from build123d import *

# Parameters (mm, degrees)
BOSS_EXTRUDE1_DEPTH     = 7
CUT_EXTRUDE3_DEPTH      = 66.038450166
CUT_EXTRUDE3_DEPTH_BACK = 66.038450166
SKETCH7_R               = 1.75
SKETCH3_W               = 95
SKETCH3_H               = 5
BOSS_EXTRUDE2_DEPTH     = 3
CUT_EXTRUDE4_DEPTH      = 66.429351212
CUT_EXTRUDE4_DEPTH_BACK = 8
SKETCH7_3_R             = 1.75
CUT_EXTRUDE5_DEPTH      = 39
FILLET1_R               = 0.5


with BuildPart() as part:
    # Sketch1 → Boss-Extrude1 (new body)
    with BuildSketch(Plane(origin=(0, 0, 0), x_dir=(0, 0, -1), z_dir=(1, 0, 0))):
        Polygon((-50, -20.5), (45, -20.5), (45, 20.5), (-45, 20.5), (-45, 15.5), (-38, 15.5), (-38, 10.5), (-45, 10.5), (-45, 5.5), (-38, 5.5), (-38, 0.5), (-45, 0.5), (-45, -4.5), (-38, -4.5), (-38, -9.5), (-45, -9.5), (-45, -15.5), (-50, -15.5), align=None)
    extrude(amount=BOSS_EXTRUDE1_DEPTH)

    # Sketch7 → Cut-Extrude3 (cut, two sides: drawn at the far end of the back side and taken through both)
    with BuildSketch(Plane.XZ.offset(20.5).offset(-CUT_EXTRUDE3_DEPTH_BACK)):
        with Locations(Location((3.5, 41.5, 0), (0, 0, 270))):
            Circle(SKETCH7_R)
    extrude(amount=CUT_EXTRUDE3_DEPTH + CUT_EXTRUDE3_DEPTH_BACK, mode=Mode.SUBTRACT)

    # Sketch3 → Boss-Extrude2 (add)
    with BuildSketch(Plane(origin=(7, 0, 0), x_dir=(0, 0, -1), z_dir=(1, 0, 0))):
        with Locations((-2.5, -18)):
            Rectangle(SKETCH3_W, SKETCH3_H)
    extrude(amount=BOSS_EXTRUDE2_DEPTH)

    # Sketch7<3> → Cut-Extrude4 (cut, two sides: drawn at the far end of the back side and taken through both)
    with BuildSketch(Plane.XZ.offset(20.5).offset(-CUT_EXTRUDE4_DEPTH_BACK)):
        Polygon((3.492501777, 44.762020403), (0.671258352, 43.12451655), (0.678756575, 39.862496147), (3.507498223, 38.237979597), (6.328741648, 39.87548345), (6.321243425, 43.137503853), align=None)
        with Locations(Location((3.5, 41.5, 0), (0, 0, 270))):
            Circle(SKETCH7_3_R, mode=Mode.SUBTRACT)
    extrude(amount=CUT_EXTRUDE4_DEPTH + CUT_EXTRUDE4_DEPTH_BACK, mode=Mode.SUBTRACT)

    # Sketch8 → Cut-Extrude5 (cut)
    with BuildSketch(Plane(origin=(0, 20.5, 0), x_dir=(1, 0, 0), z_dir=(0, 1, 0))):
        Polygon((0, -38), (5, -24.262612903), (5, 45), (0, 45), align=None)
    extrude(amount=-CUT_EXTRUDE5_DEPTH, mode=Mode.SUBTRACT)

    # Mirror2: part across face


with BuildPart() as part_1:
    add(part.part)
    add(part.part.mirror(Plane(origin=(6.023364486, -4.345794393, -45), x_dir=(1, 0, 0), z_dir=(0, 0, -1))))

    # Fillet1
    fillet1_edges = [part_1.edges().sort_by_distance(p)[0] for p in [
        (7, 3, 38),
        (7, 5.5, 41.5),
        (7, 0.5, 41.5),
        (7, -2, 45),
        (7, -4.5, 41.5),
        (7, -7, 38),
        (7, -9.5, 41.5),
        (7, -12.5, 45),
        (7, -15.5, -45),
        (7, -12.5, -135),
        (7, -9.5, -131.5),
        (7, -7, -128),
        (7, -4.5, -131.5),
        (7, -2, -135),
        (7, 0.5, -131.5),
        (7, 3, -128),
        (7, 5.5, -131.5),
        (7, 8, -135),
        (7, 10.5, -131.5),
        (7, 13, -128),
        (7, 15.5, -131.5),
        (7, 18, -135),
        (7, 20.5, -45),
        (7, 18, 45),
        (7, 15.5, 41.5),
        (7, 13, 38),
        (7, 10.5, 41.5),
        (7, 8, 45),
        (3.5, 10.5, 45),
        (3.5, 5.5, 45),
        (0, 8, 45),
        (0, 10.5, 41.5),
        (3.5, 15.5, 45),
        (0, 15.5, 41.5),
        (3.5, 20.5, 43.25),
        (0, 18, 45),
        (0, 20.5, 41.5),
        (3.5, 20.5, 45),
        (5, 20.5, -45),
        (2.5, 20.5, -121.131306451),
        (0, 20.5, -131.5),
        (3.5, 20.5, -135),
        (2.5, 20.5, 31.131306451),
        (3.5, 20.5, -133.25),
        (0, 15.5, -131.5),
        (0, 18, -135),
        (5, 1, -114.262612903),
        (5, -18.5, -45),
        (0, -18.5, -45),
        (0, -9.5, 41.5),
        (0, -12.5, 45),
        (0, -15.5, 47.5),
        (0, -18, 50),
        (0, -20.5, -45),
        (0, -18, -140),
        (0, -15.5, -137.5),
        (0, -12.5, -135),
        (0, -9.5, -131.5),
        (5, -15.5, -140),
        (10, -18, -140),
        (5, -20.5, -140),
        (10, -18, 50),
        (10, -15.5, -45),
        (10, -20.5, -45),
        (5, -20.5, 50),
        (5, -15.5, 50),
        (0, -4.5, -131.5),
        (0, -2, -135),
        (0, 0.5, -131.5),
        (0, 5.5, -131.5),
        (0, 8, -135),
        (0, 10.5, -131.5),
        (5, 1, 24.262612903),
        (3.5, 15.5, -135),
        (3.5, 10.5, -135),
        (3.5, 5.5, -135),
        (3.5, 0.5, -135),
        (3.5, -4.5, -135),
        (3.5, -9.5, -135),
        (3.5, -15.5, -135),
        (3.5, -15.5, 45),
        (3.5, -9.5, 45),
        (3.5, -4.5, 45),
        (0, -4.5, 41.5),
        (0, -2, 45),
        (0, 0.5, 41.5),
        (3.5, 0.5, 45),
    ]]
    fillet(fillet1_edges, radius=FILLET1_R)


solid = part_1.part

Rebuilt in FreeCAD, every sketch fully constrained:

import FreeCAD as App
import Part
import Sketcher

V = App.Vector
Q = App.Units.Quantity


def edges_at(feature, points):
    """Names of the edges that pass closest to the given points."""
    edges = feature.Shape.Edges
    near = lambda p: min(range(len(edges)), key=lambda i: edges[i].distToShape(Part.Vertex(*p))[0])
    return sorted({f"Edge{near(p) + 1}" for p in points})


def add_polygon(sketch, points):
    """Adds a closed chain of lines whose ends are joined by coincident constraints."""
    first, n = sketch.GeometryCount, len(points)
    for a, b in zip(points, points[1:] + points[:1]):
        sketch.addGeometry(Part.LineSegment(App.Vector(*a, 0), App.Vector(*b, 0)), False)
    for i in range(n):
        sketch.addConstraint(Sketcher.Constraint("Coincident", first + i, 2, first + (i + 1) % n, 1))

doc = App.newDocument("Part")
params = doc.addObject("Spreadsheet::Sheet", "Params")
for row, (alias, value) in enumerate([
    ("sketch1_width", "41 mm"),
    ("sketch1_width2", "5 mm"),
    ("sketch1_height", "95 mm"),
    ("sketch1_height2", "7 mm"),
    ("pad1_length", "7 mm"),
    ("sketch2_diameter", "3.5 mm"),
    ("sketch3_width", "5 mm"),
    ("sketch3_height", "95 mm"),
    ("pad2_length", "3 mm"),
    ("sketch4_diameter", "3.5 mm"),
    ("pocket2_length", "66.429351 mm"),
    ("pocket2_length2", "8 mm"),
    ("sketch5_width", "5 mm"),
    ("sketch5_height", "83 mm"),
    ("pocket3_length", "39 mm"),
    ("fillet_radius", "0.5 mm"),
], start=1):
    params.set(f"A{row}", alias)
    params.set(f"B{row}", "=" + value)
    params.setAlias(f"B{row}", alias)

body = doc.addObject("PartDesign::Body", "Body")

sketch1 = doc.addObject("Sketcher::SketchObject", "Sketch")
body.addObject(sketch1)
sketch1.AttachmentSupport = (doc.YZ_Plane, [""])
sketch1.MapMode = "FlatFace"
add_polygon(sketch1, [(-20.5, 50), (-20.5, -45), (20.5, -45), (20.5, 45), (15.5, 45), (15.5, 38), (10.5, 38), (10.5, 45), (5.5, 45), (5.5, 38), (0.5, 38), (0.5, 45), (-4.5, 45), (-4.5, 38), (-9.5, 38), (-9.5, 45), (-15.5, 45), (-15.5, 50)])
sketch1.addConstraint(Sketcher.Constraint("Vertical", 0))
sketch1.addConstraint(Sketcher.Constraint("Horizontal", 1))
sketch1.addConstraint(Sketcher.Constraint("Vertical", 2))
sketch1.addConstraint(Sketcher.Constraint("Horizontal", 3))
sketch1.addConstraint(Sketcher.Constraint("Vertical", 4))
sketch1.addConstraint(Sketcher.Constraint("Horizontal", 5))
sketch1.addConstraint(Sketcher.Constraint("Vertical", 6))
sketch1.addConstraint(Sketcher.Constraint("Horizontal", 7))
sketch1.addConstraint(Sketcher.Constraint("Vertical", 8))
sketch1.addConstraint(Sketcher.Constraint("Horizontal", 9))
sketch1.addConstraint(Sketcher.Constraint("Vertical", 10))
sketch1.addConstraint(Sketcher.Constraint("Horizontal", 11))
sketch1.addConstraint(Sketcher.Constraint("Vertical", 12))
sketch1.addConstraint(Sketcher.Constraint("Horizontal", 13))
sketch1.addConstraint(Sketcher.Constraint("Vertical", 14))
sketch1.addConstraint(Sketcher.Constraint("Horizontal", 15))
sketch1.addConstraint(Sketcher.Constraint("Vertical", 16))
sketch1.addConstraint(Sketcher.Constraint("Horizontal", 17))
sketch1.addConstraint(Sketcher.Constraint("Symmetric", 0, 2, 2, 2, -1, 1))
sketch1.addConstraint(Sketcher.Constraint("Symmetric", 3, 2, 15, 2, -2))
sketch1.addConstraint(Sketcher.Constraint("Horizontal", 3, 2, 6, 2))
sketch1.addConstraint(Sketcher.Constraint("Horizontal", 5, 2, 8, 2))
sketch1.addConstraint(Sketcher.Constraint("Horizontal", 7, 2, 10, 2))
sketch1.addConstraint(Sketcher.Constraint("Horizontal", 9, 2, 12, 2))
sketch1.addConstraint(Sketcher.Constraint("Equal", 3, 5))
sketch1.addConstraint(Sketcher.Constraint("Equal", 5, 7))
sketch1.addConstraint(Sketcher.Constraint("Equal", 7, 9))
sketch1.addConstraint(Sketcher.Constraint("Equal", 9, 11))
sketch1.addConstraint(Sketcher.Constraint("Equal", 11, 13))
sketch1.addConstraint(Sketcher.Constraint("Equal", 17, 16))
sketch1.addConstraint(Sketcher.Constraint("DistanceX", 1, 1, 1, 2, Q("41 mm")))
sketch1.addConstraint(Sketcher.Constraint("DistanceX", 3, 2, 3, 1, Q("5 mm")))
sketch1.addConstraint(Sketcher.Constraint("DistanceY", 0, 2, 0, 1, Q("95 mm")))
sketch1.addConstraint(Sketcher.Constraint("DistanceY", 4, 2, 4, 1, Q("7 mm")))
sketch1.setExpression("Constraints[48]", "Params.sketch1_width")
sketch1.setExpression("Constraints[49]", "Params.sketch1_width2")
sketch1.setExpression("Constraints[50]", "Params.sketch1_height")
sketch1.setExpression("Constraints[51]", "Params.sketch1_height2")
pad1 = doc.addObject("PartDesign::Pad", "Pad")
body.addObject(pad1)
pad1.Profile = sketch1
pad1.setExpression("Length", "Params.pad1_length")

sketch2 = doc.addObject("Sketcher::SketchObject", "Sketch001")
body.addObject(sketch2)
sketch2.AttachmentSupport = (doc.XZ_Plane, [""])
sketch2.MapMode = "FlatFace"
sketch2.AttachmentOffset = App.Placement(V(0, 0, 20.5), App.Rotation())
sketch2.addGeometry(Part.Circle(V(3.5, 41.5, 0), V(0, 0, 1), 1.75), False)
sketch2.addConstraint(Sketcher.Constraint("Diameter", 0, Q("3.5 mm")))
sketch2.addConstraint(Sketcher.Constraint("DistanceX", -1, 1, 0, 3, Q("3.5 mm")))
sketch2.addConstraint(Sketcher.Constraint("DistanceY", -1, 1, 0, 3, Q("41.5 mm")))
sketch2.setExpression("Constraints[0]", "Params.sketch2_diameter")
pocket1 = doc.addObject("PartDesign::Pocket", "Pocket")
body.addObject(pocket1)
pocket1.Profile = sketch2
pocket1.Type = "ThroughAll"
pocket1.Midplane = True

sketch3 = doc.addObject("Sketcher::SketchObject", "Sketch002")
body.addObject(sketch3)
sketch3.AttachmentSupport = (doc.YZ_Plane, [""])
sketch3.MapMode = "FlatFace"
sketch3.AttachmentOffset = App.Placement(V(0, 0, 7), App.Rotation())
add_polygon(sketch3, [(-15.5, 50), (-20.5, 50), (-20.5, -45), (-15.5, -45)])
sketch3.addConstraint(Sketcher.Constraint("Horizontal", 0))
sketch3.addConstraint(Sketcher.Constraint("Vertical", 1))
sketch3.addConstraint(Sketcher.Constraint("Horizontal", 2))
sketch3.addConstraint(Sketcher.Constraint("Vertical", 3))
sketch3.addConstraint(Sketcher.Constraint("DistanceX", 0, 2, 0, 1, Q("5 mm")))
sketch3.addConstraint(Sketcher.Constraint("DistanceY", 1, 2, 1, 1, Q("95 mm")))
sketch3.addConstraint(Sketcher.Constraint("DistanceY", -1, 1, 0, 2, Q("50 mm")))
sketch3.addConstraint(Sketcher.Constraint("DistanceX", 0, 2, -1, 1, Q("20.5 mm")))
sketch3.setExpression("Constraints[8]", "Params.sketch3_width")
sketch3.setExpression("Constraints[9]", "Params.sketch3_height")
pad2 = doc.addObject("PartDesign::Pad", "Pad001")
body.addObject(pad2)
pad2.Profile = sketch3
pad2.setExpression("Length", "Params.pad2_length")

sketch4 = doc.addObject("Sketcher::SketchObject", "Sketch003")
body.addObject(sketch4)
sketch4.AttachmentSupport = (doc.XZ_Plane, [""])
sketch4.MapMode = "FlatFace"
sketch4.AttachmentOffset = App.Placement(V(0, 0, 20.5), App.Rotation())
add_polygon(sketch4, [(3.492502, 44.76202), (0.671258, 43.124517), (0.678757, 39.862496), (3.507498, 38.23798), (6.328742, 39.875483), (6.321243, 43.137504)])
sketch4.addGeometry(Part.Circle(V(3.5, 41.5, 0), V(0, 0, 1), 1.75), False)
sketch4.addConstraint(Sketcher.Constraint("Parallel", 0, 3))
sketch4.addConstraint(Sketcher.Constraint("Parallel", 1, 4))
sketch4.addConstraint(Sketcher.Constraint("Parallel", 2, 5))
sketch4.addConstraint(Sketcher.Constraint("Equal", 0, 1))
sketch4.addConstraint(Sketcher.Constraint("Equal", 1, 2))
sketch4.addConstraint(Sketcher.Constraint("Equal", 2, 3))
sketch4.addConstraint(Sketcher.Constraint("Diameter", 6, Q("3.5 mm")))
sketch4.addConstraint(Sketcher.Constraint("DistanceX", -1, 1, 6, 3, Q("3.5 mm")))
sketch4.addConstraint(Sketcher.Constraint("DistanceY", -1, 1, 6, 3, Q("41.5 mm")))
sketch4.addConstraint(Sketcher.Constraint("DistanceX", -1, 1, 2, 2, Q("3.507498 mm")))
sketch4.addConstraint(Sketcher.Constraint("DistanceX", -1, 1, 5, 2, Q("3.492502 mm")))
sketch4.addConstraint(Sketcher.Constraint("DistanceX", 0, 2, 1, 2, Q("0.007498 mm")))
sketch4.addConstraint(Sketcher.Constraint("Distance", 0, Q("3.262029 mm")))
sketch4.addConstraint(Sketcher.Constraint("DistanceX", -1, 1, 0, 2, Q("0.671258 mm")))
sketch4.addConstraint(Sketcher.Constraint("DistanceY", -1, 1, 2, 2, Q("38.23798 mm")))
sketch4.setExpression("Constraints[12]", "Params.sketch4_diameter")
pocket2 = doc.addObject("PartDesign::Pocket", "Pocket001")
body.addObject(pocket2)
pocket2.Profile = sketch4
pocket2.Type = "TwoLengths"
pocket2.setExpression("Length", "Params.pocket2_length")
pocket2.setExpression("Length2", "Params.pocket2_length2")
pocket2.Reversed = True

sketch5 = doc.addObject("Sketcher::SketchObject", "Sketch004")
body.addObject(sketch5)
sketch5.AttachmentSupport = (doc.XZ_Plane, [""])
sketch5.MapMode = "FlatFace"
sketch5.AttachmentOffset = App.Placement(V(0, 0, -20.5), App.Rotation())
add_polygon(sketch5, [(0, 38), (5, 24.262613), (5, -45), (0, -45)])
sketch5.addConstraint(Sketcher.Constraint("Vertical", 1))
sketch5.addConstraint(Sketcher.Constraint("Horizontal", 2))
sketch5.addConstraint(Sketcher.Constraint("Vertical", 3))
sketch5.addConstraint(Sketcher.Constraint("PointOnObject", 2, 2, -2))
sketch5.addConstraint(Sketcher.Constraint("DistanceX", 2, 2, 2, 1, Q("5 mm")))
sketch5.addConstraint(Sketcher.Constraint("DistanceY", 3, 1, 3, 2, Q("83 mm")))
sketch5.addConstraint(Sketcher.Constraint("Angle", 0, Q("-70 deg")))
sketch5.addConstraint(Sketcher.Constraint("DistanceY", 1, 2, -1, 1, Q("45 mm")))
sketch5.setExpression("Constraints[8]", "Params.sketch5_width")
sketch5.setExpression("Constraints[9]", "Params.sketch5_height")
pocket3 = doc.addObject("PartDesign::Pocket", "Pocket002")
body.addObject(pocket3)
pocket3.Profile = sketch5
pocket3.setExpression("Length", "Params.pocket3_length")
pocket3.Reversed = True
body2 = doc.addObject("PartDesign::Body", "Body001")
doc.recompute()

body2.BaseFeature = body
doc.recompute()

mirroring = doc.addObject("Part::Mirroring", "Mirroring")
mirroring.Source = body
mirroring.Base = V(6.023364, -4.345794, -45)
mirroring.Normal = V(0, 0, -1)
body3 = doc.addObject("PartDesign::Body", "Body002")
body3.BaseFeature = mirroring
boolean = doc.addObject("PartDesign::Boolean", "Boolean")
body2.addObject(boolean)
boolean.Type = "Fuse"
boolean.addObjects([body3])
doc.recompute()

fillet = doc.addObject("PartDesign::Fillet", "Fillet")
body2.addObject(fillet)
fillet.Base = (boolean, edges_at(boolean, [
    (7, 3, 38),
    (7, 5.5, 41.5),
    (7, 0.5, 41.5),
    (7, -2, 45),
    (7, -4.5, 41.5),
    (7, -7, 38),
    (7, -9.5, 41.5),
    (7, -12.5, 45),
    (7, -15.5, -45),
    (7, -12.5, -135),
    (7, -9.5, -131.5),
    (7, -7, -128),
    (7, -4.5, -131.5),
    (7, -2, -135),
    (7, 0.5, -131.5),
    (7, 3, -128),
    (7, 5.5, -131.5),
    (7, 8, -135),
    (7, 10.5, -131.5),
    (7, 13, -128),
    (7, 15.5, -131.5),
    (7, 18, -135),
    (7, 20.5, -45),
    (7, 18, 45),
    (7, 15.5, 41.5),
    (7, 13, 38),
    (7, 10.5, 41.5),
    (7, 8, 45),
    (3.5, 10.5, 45),
    (3.5, 5.5, 45),
    (0, 8, 45),
    (0, 10.5, 41.5),
    (3.5, 15.5, 45),
    (0, 15.5, 41.5),
    (3.5, 20.5, 43.25),
    (0, 18, 45),
    (0, 20.5, 41.5),
    (3.5, 20.5, 45),
    (5, 20.5, -45),
    (2.5, 20.5, -121.131),
    (0, 20.5, -131.5),
    (3.5, 20.5, -135),
    (2.5, 20.5, 31.131),
    (3.5, 20.5, -133.25),
    (0, 15.5, -131.5),
    (0, 18, -135),
    (5, 1, -114.263),
    (5, -18.5, -45),
    (0, -18.5, -45),
    (0, -9.5, 41.5),
    (0, -12.5, 45),
    (0, -15.5, 47.5),
    (0, -18, 50),
    (0, -20.5, -45),
    (0, -18, -140),
    (0, -15.5, -137.5),
    (0, -12.5, -135),
    (0, -9.5, -131.5),
    (5, -15.5, -140),
    (10, -18, -140),
    (5, -20.5, -140),
    (10, -18, 50),
    (10, -15.5, -45),
    (10, -20.5, -45),
    (5, -20.5, 50),
    (5, -15.5, 50),
    (0, -4.5, -131.5),
    (0, -2, -135),
    (0, 0.5, -131.5),
    (0, 5.5, -131.5),
    (0, 8, -135),
    (0, 10.5, -131.5),
    (5, 1, 24.263),
    (3.5, 15.5, -135),
    (3.5, 10.5, -135),
    (3.5, 5.5, -135),
    (3.5, 0.5, -135),
    (3.5, -4.5, -135),
    (3.5, -9.5, -135),
    (3.5, -15.5, -135),
    (3.5, -15.5, 45),
    (3.5, -9.5, 45),
    (3.5, -4.5, 45),
    (0, -4.5, 41.5),
    (0, -2, 45),
    (0, 0.5, 41.5),
    (3.5, 0.5, 45),
]))
fillet.setExpression("Radius", "Params.fillet_radius")
mirroring.Visibility = False

doc.recompute()
